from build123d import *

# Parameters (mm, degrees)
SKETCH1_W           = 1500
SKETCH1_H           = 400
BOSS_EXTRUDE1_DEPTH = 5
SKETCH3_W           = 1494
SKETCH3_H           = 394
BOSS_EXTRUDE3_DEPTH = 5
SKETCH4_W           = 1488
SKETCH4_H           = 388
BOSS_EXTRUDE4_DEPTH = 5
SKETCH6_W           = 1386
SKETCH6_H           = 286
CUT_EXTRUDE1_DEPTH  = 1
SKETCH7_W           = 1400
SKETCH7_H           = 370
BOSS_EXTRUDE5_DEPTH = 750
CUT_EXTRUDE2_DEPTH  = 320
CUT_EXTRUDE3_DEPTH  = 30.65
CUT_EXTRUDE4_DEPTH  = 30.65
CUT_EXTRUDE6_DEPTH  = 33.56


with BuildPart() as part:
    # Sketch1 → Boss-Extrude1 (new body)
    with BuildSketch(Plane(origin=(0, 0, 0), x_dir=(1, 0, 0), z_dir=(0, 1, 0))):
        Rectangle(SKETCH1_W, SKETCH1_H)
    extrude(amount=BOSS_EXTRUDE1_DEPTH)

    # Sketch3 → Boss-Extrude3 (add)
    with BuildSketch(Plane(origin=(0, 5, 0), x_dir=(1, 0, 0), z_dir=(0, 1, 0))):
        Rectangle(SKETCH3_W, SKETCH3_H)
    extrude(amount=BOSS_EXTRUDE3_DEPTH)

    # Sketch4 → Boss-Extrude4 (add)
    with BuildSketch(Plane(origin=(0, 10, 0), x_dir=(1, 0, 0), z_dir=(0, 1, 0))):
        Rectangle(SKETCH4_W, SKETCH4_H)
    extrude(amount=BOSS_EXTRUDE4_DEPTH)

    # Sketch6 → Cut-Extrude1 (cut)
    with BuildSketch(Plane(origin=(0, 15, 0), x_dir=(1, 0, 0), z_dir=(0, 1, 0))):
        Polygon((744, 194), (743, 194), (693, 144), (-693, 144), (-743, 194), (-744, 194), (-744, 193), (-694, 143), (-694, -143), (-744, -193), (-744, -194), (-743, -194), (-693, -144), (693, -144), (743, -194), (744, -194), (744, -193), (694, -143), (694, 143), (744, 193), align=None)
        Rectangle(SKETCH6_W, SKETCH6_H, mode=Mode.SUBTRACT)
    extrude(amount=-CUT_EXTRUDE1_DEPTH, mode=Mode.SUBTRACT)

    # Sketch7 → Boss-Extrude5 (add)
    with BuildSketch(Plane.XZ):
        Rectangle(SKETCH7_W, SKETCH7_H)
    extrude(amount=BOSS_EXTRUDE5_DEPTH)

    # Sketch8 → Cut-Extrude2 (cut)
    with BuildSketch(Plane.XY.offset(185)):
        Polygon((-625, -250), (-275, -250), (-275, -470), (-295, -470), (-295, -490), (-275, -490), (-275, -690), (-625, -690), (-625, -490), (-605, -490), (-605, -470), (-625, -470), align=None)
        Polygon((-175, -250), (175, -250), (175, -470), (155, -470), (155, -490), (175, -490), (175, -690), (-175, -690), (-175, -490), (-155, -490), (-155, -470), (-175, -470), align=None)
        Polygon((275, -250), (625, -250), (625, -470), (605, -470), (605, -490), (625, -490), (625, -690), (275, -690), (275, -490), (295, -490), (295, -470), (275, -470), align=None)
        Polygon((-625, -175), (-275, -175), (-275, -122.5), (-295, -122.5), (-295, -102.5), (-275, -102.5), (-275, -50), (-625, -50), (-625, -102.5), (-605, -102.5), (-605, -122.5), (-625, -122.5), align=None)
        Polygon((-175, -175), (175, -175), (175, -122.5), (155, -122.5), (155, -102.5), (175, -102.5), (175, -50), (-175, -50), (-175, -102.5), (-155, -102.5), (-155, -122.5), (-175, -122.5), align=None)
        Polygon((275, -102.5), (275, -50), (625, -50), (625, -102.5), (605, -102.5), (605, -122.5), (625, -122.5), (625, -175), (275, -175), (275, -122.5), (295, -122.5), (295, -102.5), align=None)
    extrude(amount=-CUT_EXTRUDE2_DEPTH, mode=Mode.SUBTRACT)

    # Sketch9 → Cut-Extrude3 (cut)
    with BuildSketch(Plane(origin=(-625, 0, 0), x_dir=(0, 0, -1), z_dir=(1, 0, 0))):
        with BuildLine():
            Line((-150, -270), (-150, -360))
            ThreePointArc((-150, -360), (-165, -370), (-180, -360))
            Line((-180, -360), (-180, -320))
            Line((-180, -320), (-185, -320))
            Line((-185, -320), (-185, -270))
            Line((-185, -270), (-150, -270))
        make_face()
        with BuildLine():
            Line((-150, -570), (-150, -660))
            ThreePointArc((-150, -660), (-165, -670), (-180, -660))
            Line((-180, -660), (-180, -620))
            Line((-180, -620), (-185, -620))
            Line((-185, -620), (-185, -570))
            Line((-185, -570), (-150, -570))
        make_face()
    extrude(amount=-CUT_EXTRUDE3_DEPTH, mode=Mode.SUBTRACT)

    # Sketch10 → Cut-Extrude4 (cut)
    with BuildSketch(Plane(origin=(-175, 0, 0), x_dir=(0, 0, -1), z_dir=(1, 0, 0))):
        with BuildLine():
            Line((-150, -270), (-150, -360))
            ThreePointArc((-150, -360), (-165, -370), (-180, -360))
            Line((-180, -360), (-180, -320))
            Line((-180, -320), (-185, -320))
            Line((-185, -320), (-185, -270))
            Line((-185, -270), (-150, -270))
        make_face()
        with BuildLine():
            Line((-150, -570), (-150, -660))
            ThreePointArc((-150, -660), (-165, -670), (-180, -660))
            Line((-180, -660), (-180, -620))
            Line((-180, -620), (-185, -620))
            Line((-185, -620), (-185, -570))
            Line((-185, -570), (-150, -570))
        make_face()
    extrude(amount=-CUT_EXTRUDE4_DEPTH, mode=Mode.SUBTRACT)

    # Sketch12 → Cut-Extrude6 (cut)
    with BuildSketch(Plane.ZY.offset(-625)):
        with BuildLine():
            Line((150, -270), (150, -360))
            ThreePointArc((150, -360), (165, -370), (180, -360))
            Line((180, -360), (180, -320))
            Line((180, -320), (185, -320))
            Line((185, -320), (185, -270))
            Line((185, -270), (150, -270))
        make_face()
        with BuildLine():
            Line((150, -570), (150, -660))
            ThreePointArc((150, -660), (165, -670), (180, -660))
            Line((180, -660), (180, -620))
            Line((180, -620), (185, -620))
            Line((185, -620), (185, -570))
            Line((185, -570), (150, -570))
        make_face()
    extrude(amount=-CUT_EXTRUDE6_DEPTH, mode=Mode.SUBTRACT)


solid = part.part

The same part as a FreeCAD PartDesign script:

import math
import FreeCAD as App
import Part
import Sketcher
from FreeCAD import Vector
Q = App.Units.Quantity


def add_polygon(sketch, points):
    """Adds a closed chain of lines whose ends are joined by coincident constraints."""
    first, n = sketch.GeometryCount, len(points)
    for a, b in zip(points, points[1:] + points[:1]):
        sketch.addGeometry(Part.LineSegment(App.Vector(*a, 0), App.Vector(*b, 0)), False)
    for i in range(n):
        sketch.addConstraint(Sketcher.Constraint("Coincident", first + i, 2, first + (i + 1) % n, 1))

doc = App.newDocument("Part")
params = doc.addObject("Spreadsheet::Sheet", "Params")
for row, (alias, value) in enumerate([
    ("sketch1_width", "1500 mm"),
    ("sketch1_height", "400 mm"),
    ("pad1_length", "5 mm"),
    ("sketch2_width", "1494 mm"),
    ("sketch2_height", "394 mm"),
    ("pad2_length", "5 mm"),
    ("sketch3_width", "1488 mm"),
    ("sketch3_height", "388 mm"),
    ("pad3_length", "5 mm"),
    ("sketch4_width", "1 mm"),
    ("sketch4_width2", "1386 mm"),
    ("sketch4_height", "286 mm"),
    ("pocket1_length", "1 mm"),
    ("sketch5_width", "1400 mm"),
    ("sketch5_height", "370 mm"),
    ("pad4_length", "750 mm"),
    ("sketch6_width", "350 mm"),
    ("sketch6_width2", "20 mm"),
    ("sketch6_height", "220 mm"),
    ("sketch6_height2", "200 mm"),
    ("sketch6_height3", "52.5 mm"),
    ("pocket2_length", "320 mm"),
    ("sketch7_width", "90 mm"),
    ("sketch7_width2", "50 mm"),
    ("sketch7_height", "35 mm"),
    ("sketch7_height2", "5 mm"),
    ("sketch7_radius", "16.25 mm"),
    ("pocket3_length", "30.65 mm"),
    ("sketch8_width", "90 mm"),
    ("sketch8_width2", "50 mm"),
    ("sketch8_height", "35 mm"),
    ("sketch8_height2", "5 mm"),
    ("sketch8_radius", "16.25 mm"),
    ("pocket4_length", "30.65 mm"),
    ("sketch9_width", "90 mm"),
    ("sketch9_width2", "40 mm"),
    ("sketch9_height", "5 mm"),
    ("sketch9_height2", "35 mm"),
    ("sketch9_radius", "16.25 mm"),
    ("pocket5_length", "33.56 mm"),
], start=1):
    params.set(f"A{row}", alias)
    params.set(f"B{row}", "=" + value)
    params.setAlias(f"B{row}", alias)

body = doc.addObject("PartDesign::Body", "Body")

# Sketch on XZ plane
sketch1 = body.newObject("Sketcher::SketchObject", "Sketch")
sketch1.AttachmentSupport = (doc.getObject("XZ_Plane"), [""])
sketch1.MapMode = "FlatFace"
add_polygon(sketch1, [(-750, -200), (-750, 200), (750, 200), (750, -200)])  # lines 0-3
sketch1.addConstraint([
    Sketcher.Constraint("Vertical", 0),
    Sketcher.Constraint("Horizontal", 1),
    Sketcher.Constraint("Vertical", 2),
    Sketcher.Constraint("Horizontal", 3),
    Sketcher.Constraint("Symmetric", 0, 2, 2, 2, -1, 1),
    Sketcher.Constraint("DistanceX", 1, 1, 1, 2, Q("1500 mm")),
    Sketcher.Constraint("DistanceY", 0, 1, 0, 2, Q("400 mm")),
])
sketch1.setExpression("Constraints[9]", "Params.sketch1_width")
sketch1.setExpression("Constraints[10]", "Params.sketch1_height")
pad1 = body.newObject("PartDesign::Pad", "Pad")
pad1.Profile = sketch1
pad1.setExpression("Length", "Params.pad1_length")
pad1.Reversed = True

# Sketch on XZ plane
sketch2 = body.newObject("Sketcher::SketchObject", "Sketch001")
sketch2.AttachmentSupport = (doc.getObject("XZ_Plane"), [""])
sketch2.MapMode = "FlatFace"
sketch2.AttachmentOffset = App.Placement(Vector(0, 0, -5), App.Rotation())
add_polygon(sketch2, [(-747, -197), (-747, 197), (747, 197), (747, -197)])  # lines 0-3
sketch2.addConstraint([
    Sketcher.Constraint("Vertical", 0),
    Sketcher.Constraint("Horizontal", 1),
    Sketcher.Constraint("Vertical", 2),
    Sketcher.Constraint("Horizontal", 3),
    Sketcher.Constraint("Symmetric", 0, 2, 2, 2, -1, 1),
    Sketcher.Constraint("DistanceX", 1, 1, 1, 2, Q("1494 mm")),
    Sketcher.Constraint("DistanceY", 0, 1, 0, 2, Q("394 mm")),
])
sketch2.setExpression("Constraints[9]", "Params.sketch2_width")
sketch2.setExpression("Constraints[10]", "Params.sketch2_height")
pad2 = body.newObject("PartDesign::Pad", "Pad001")
pad2.Profile = sketch2
pad2.setExpression("Length", "Params.pad2_length")
pad2.Reversed = True

# Sketch on XZ plane
sketch3 = body.newObject("Sketcher::SketchObject", "Sketch002")
sketch3.AttachmentSupport = (doc.getObject("XZ_Plane"), [""])
sketch3.MapMode = "FlatFace"
sketch3.AttachmentOffset = App.Placement(Vector(0, 0, -10), App.Rotation())
add_polygon(sketch3, [(-744, -194), (-744, 194), (744, 194), (744, -194)])  # lines 0-3
sketch3.addConstraint([
    Sketcher.Constraint("Vertical", 0),
    Sketcher.Constraint("Horizontal", 1),
    Sketcher.Constraint("Vertical", 2),
    Sketcher.Constraint("Horizontal", 3),
    Sketcher.Constraint("Symmetric", 0, 2, 2, 2, -1, 1),
    Sketcher.Constraint("DistanceX", 1, 1, 1, 2, Q("1488 mm")),
    Sketcher.Constraint("DistanceY", 0, 1, 0, 2, Q("388 mm")),
])
sketch3.setExpression("Constraints[9]", "Params.sketch3_width")
sketch3.setExpression("Constraints[10]", "Params.sketch3_height")
pad3 = body.newObject("PartDesign::Pad", "Pad002")
pad3.Profile = sketch3
pad3.setExpression("Length", "Params.pad3_length")
pad3.Reversed = True

# Sketch on XZ plane
sketch4 = body.newObject("Sketcher::SketchObject", "Sketch003")
sketch4.AttachmentSupport = (doc.getObject("XZ_Plane"), [""])
sketch4.MapMode = "FlatFace"
sketch4.AttachmentOffset = App.Placement(Vector(0, 0, -15), App.Rotation())
add_polygon(sketch4, [(744, -194), (743, -194), (693, -144), (-693, -144), (-743, -194), (-744, -194), (-744, -193), (-694, -143), (-694, 143), (-744, 193), (-744, 194), (-743, 194), (-693, 144), (693, 144), (743, 194), (744, 194), (744, 193), (694, 143), (694, -143), (744, -193)])  # lines 0-19
add_polygon(sketch4, [(693, 143), (-693, 143), (-693, -143), (693, -143)])  # lines 20-23
sketch4.addConstraint([
    Sketcher.Constraint("Horizontal", 0),
    Sketcher.Constraint("Horizontal", 2),
    Sketcher.Constraint("Horizontal", 4),
    Sketcher.Constraint("Vertical", 5),
    Sketcher.Constraint("Vertical", 7),
    Sketcher.Constraint("Vertical", 9),
    Sketcher.Constraint("Horizontal", 10),
    Sketcher.Constraint("Horizontal", 12),
    Sketcher.Constraint("Horizontal", 14),
    Sketcher.Constraint("Vertical", 15),
    Sketcher.Constraint("Vertical", 17),
    Sketcher.Constraint("Vertical", 19),
    Sketcher.Constraint("Horizontal", 20),
    Sketcher.Constraint("Vertical", 21),
    Sketcher.Constraint("Horizontal", 22),
    Sketcher.Constraint("Vertical", 23),
    Sketcher.Constraint("Symmetric", 0, 2, 10, 2, -1, 1),
    Sketcher.Constraint("Symmetric", 1, 2, 11, 2, -1, 1),
    Sketcher.Constraint("Symmetric", 3, 2, 13, 2, -1, 1),
    Sketcher.Constraint("Symmetric", 5, 2, 15, 2, -1, 1),
    Sketcher.Constraint("Symmetric", 6, 2, 16, 2, -1, 1),
    Sketcher.Constraint("Symmetric", 8, 2, 18, 2, -1, 1),
    Sketcher.Constraint("Symmetric", 20, 2, 22, 2, -1, 1),
    Sketcher.Constraint("Symmetric", 0, 2, 3, 2, -2),
    Sketcher.Constraint("Symmetric", 8, 2, 15, 2, -2),
    Sketcher.Constraint("Perpendicular", 1, 3),
    Sketcher.Constraint("Parallel", 3, 6),
    Sketcher.Constraint("Perpendicular", 6, 8),
    Sketcher.Constraint("Perpendicular", 11, 13),
    Sketcher.Constraint("Perpendicular", 16, 18),
    Sketcher.Constraint("Horizontal", 7, 2, 16, 2),
    Sketcher.Constraint("Horizontal", 16, 2, 20, 2),
    Sketcher.Constraint("Vertical", 11, 2, 20, 2),
    Sketcher.Constraint("Equal", 14, 5),
    Sketcher.Constraint("Equal", 3, 6),
    Sketcher.Constraint("DistanceX", 0, 2, 0, 1, Q("1 mm")),
    Sketcher.Constraint("DistanceX", 2, 2, 2, 1, Q("1386 mm")),
    Sketcher.Constraint("DistanceY", 7, 1, 7, 2, Q("286 mm")),
    Sketcher.Constraint("DistanceX", -1, 1, 0, 2, Q("743 mm")),
])
sketch4.setExpression("Constraints[59]", "Params.sketch4_width")
sketch4.setExpression("Constraints[60]", "Params.sketch4_width2")
sketch4.setExpression("Constraints[61]", "Params.sketch4_height")
pocket1 = body.newObject("PartDesign::Pocket", "Pocket")
pocket1.Profile = sketch4
pocket1.setExpression("Length", "Params.pocket1_length")
pocket1.Reversed = True

# Sketch on XZ plane
sketch5 = body.newObject("Sketcher::SketchObject", "Sketch004")
sketch5.AttachmentSupport = (doc.getObject("XZ_Plane"), [""])
sketch5.MapMode = "FlatFace"
add_polygon(sketch5, [(-700, 185), (-700, -185), (700, -185), (700, 185)])  # lines 0-3
sketch5.addConstraint([
    Sketcher.Constraint("Vertical", 0),
    Sketcher.Constraint("Horizontal", 1),
    Sketcher.Constraint("Vertical", 2),
    Sketcher.Constraint("Horizontal", 3),
    Sketcher.Constraint("Symmetric", 0, 2, 2, 2, -1, 1),
    Sketcher.Constraint("DistanceX", 1, 1, 1, 2, Q("1400 mm")),
    Sketcher.Constraint("DistanceY", 0, 2, 0, 1, Q("370 mm")),
])
sketch5.setExpression("Constraints[9]", "Params.sketch5_width")
sketch5.setExpression("Constraints[10]", "Params.sketch5_height")
pad4 = body.newObject("PartDesign::Pad", "Pad003")
pad4.Profile = sketch5
pad4.setExpression("Length", "Params.pad4_length")

# Sketch on XY plane
sketch6 = body.newObject("Sketcher::SketchObject", "Sketch005")
sketch6.AttachmentSupport = (doc.getObject("XY_Plane"), [""])
sketch6.MapMode = "FlatFace"
sketch6.AttachmentOffset = App.Placement(Vector(0, 0, 185), App.Rotation())
add_polygon(sketch6, [(-275, -250), (-625, -250), (-625, -470), (-605, -470), (-605, -490), (-625, -490), (-625, -690), (-275, -690), (-275, -490), (-295, -490), (-295, -470), (-275, -470)])  # lines 0-11
add_polygon(sketch6, [(175, -250), (-175, -250), (-175, -470), (-155, -470), (-155, -490), (-175, -490), (-175, -690), (175, -690), (175, -490), (155, -490), (155, -470), (175, -470)])  # lines 12-23
add_polygon(sketch6, [(625, -250), (275, -250), (275, -470), (295, -470), (295, -490), (275, -490), (275, -690), (625, -690), (625, -490), (605, -490), (605, -470), (625, -470)])  # lines 24-35
add_polygon(sketch6, [(-625, -175), (-275, -175), (-275, -122), (-295, -122), (-295, -102), (-275, -102), (-275, -50), (-625, -50), (-625, -102), (-605, -102), (-605, -122), (-625, -122)])  # lines 36-47
add_polygon(sketch6, [(-175, -175), (175, -175), (175, -122), (155, -122), (155, -102), (175, -102), (175, -50), (-175, -50), (-175, -102), (-155, -102), (-155, -122), (-175, -122)])  # lines 48-59
add_polygon(sketch6, [(275, -50), (275, -102), (295, -102), (295, -122), (275, -122), (275, -175), (625, -175), (625, -122), (605, -122), (605, -102), (625, -102), (625, -50)])  # lines 60-71
sketch6.addConstraint([
    Sketcher.Constraint("Horizontal", 0),
    Sketcher.Constraint("Vertical", 1),
    Sketcher.Constraint("Horizontal", 2),
    Sketcher.Constraint("Vertical", 3),
    Sketcher.Constraint("Horizontal", 4),
    Sketcher.Constraint("Vertical", 5),
    Sketcher.Constraint("Horizontal", 6),
    Sketcher.Constraint("Vertical", 7),
    Sketcher.Constraint("Horizontal", 8),
    Sketcher.Constraint("Vertical", 9),
    Sketcher.Constraint("Horizontal", 10),
    Sketcher.Constraint("Vertical", 11),
    Sketcher.Constraint("Horizontal", 12),
    Sketcher.Constraint("Vertical", 13),
    Sketcher.Constraint("Horizontal", 14),
    Sketcher.Constraint("Vertical", 15),
    Sketcher.Constraint("Horizontal", 16),
    Sketcher.Constraint("Vertical", 17),
    Sketcher.Constraint("Horizontal", 18),
    Sketcher.Constraint("Vertical", 19),
    Sketcher.Constraint("Horizontal", 20),
    Sketcher.Constraint("Vertical", 21),
    Sketcher.Constraint("Horizontal", 22),
    Sketcher.Constraint("Vertical", 23),
    Sketcher.Constraint("Horizontal", 24),
    Sketcher.Constraint("Vertical", 25),
    Sketcher.Constraint("Horizontal", 26),
    Sketcher.Constraint("Vertical", 27),
    Sketcher.Constraint("Horizontal", 28),
    Sketcher.Constraint("Vertical", 29),
    Sketcher.Constraint("Horizontal", 30),
    Sketcher.Constraint("Vertical", 31),
    Sketcher.Constraint("Horizontal", 32),
    Sketcher.Constraint("Vertical", 33),
    Sketcher.Constraint("Horizontal", 34),
    Sketcher.Constraint("Vertical", 35),
    Sketcher.Constraint("Horizontal", 36),
    Sketcher.Constraint("Vertical", 37),
    Sketcher.Constraint("Horizontal", 38),
    Sketcher.Constraint("Vertical", 39),
    Sketcher.Constraint("Horizontal", 40),
    Sketcher.Constraint("Vertical", 41),
    Sketcher.Constraint("Horizontal", 42),
    Sketcher.Constraint("Vertical", 43),
    Sketcher.Constraint("Horizontal", 44),
    Sketcher.Constraint("Vertical", 45),
    Sketcher.Constraint("Horizontal", 46),
    Sketcher.Constraint("Vertical", 47),
    Sketcher.Constraint("Horizontal", 48),
    Sketcher.Constraint("Vertical", 49),
    Sketcher.Constraint("Horizontal", 50),
    Sketcher.Constraint("Vertical", 51),
    Sketcher.Constraint("Horizontal", 52),
    Sketcher.Constraint("Vertical", 53),
    Sketcher.Constraint("Horizontal", 54),
    Sketcher.Constraint("Vertical", 55),
    Sketcher.Constraint("Horizontal", 56),
    Sketcher.Constraint("Vertical", 57),
    Sketcher.Constraint("Horizontal", 58),
    Sketcher.Constraint("Vertical", 59),
    Sketcher.Constraint("Vertical", 60),
    Sketcher.Constraint("Horizontal", 61),
    Sketcher.Constraint("Vertical", 62),
    Sketcher.Constraint("Horizontal", 63),
    Sketcher.Constraint("Vertical", 64),
    Sketcher.Constraint("Horizontal", 65),
    Sketcher.Constraint("Vertical", 66),
    Sketcher.Constraint("Horizontal", 67),
    Sketcher.Constraint("Vertical", 68),
    Sketcher.Constraint("Horizontal", 69),
    Sketcher.Constraint("Vertical", 70),
    Sketcher.Constraint("Horizontal", 71),
    Sketcher.Constraint("Symmetric", 16, 2, 19, 2, -2),
    Sketcher.Constraint("Symmetric", 14, 2, 21, 2, -2),
    Sketcher.Constraint("Symmetric", 11, 2, 24, 2, -2),
    Sketcher.Constraint("Symmetric", 9, 2, 26, 2, -2),
    Sketcher.Constraint("Symmetric", 7, 2, 28, 2, -2),
    Sketcher.Constraint("Symmetric", 5, 2, 30, 2, -2),
    Sketcher.Constraint("Symmetric", 3, 2, 32, 2, -2),
    Sketcher.Constraint("Symmetric", 1, 2, 34, 2, -2),
    Sketcher.Constraint("Symmetric", 52, 2, 55, 2, -2),
    Sketcher.Constraint("Symmetric", 50, 2, 57, 2, -2),
    Sketcher.Constraint("Symmetric", 40, 2, 60, 2, -2),
    Sketcher.Constraint("Symmetric", 38, 2, 62, 2, -2),
    Sketcher.Constraint("Symmetric", 36, 2, 64, 2, -2),
    Sketcher.Constraint("Symmetric", 46, 2, 66, 2, -2),
    Sketcher.Constraint("Symmetric", 44, 2, 68, 2, -2),
    Sketcher.Constraint("Symmetric", 42, 2, 70, 2, -2),
    Sketcher.Constraint("Horizontal", 4, 2, 7, 2),
    Sketcher.Constraint("Horizontal", 2, 2, 9, 2),
    Sketcher.Constraint("Horizontal", 11, 2, 12, 2),
    Sketcher.Constraint("Horizontal", 10, 2, 13, 2),
    Sketcher.Constraint("Horizontal", 8, 2, 15, 2),
    Sketcher.Constraint("Horizontal", 6, 2, 17, 2),
    Sketcher.Constraint("Horizontal", 40, 2, 43, 2),
    Sketcher.Constraint("Horizontal", 38, 2, 45, 2),
    Sketcher.Constraint("Horizontal", 47, 2, 48, 2),
    Sketcher.Constraint("Horizontal", 46, 2, 49, 2),
    Sketcher.Constraint("Horizontal", 44, 2, 51, 2),
    Sketcher.Constraint("Horizontal", 42, 2, 53, 2),
    Sketcher.Constraint("Vertical", 1, 2, 4, 2),
    Sketcher.Constraint("Vertical", 7, 2, 10, 2),
    Sketcher.Constraint("Vertical", 13, 2, 16, 2),
    Sketcher.Constraint("Vertical", 19, 2, 22, 2),
    Sketcher.Constraint("Vertical", 11, 2, 36, 2),
    Sketcher.Constraint("Vertical", 9, 2, 38, 2),
    Sketcher.Constraint("Vertical", 37, 2, 40, 2),
    Sketcher.Constraint("Vertical", 5, 2, 42, 2),
    Sketcher.Constraint("Vertical", 3, 2, 44, 2),
    Sketcher.Constraint("Vertical", 43, 2, 46, 2),
    Sketcher.Constraint("Vertical", 23, 2, 48, 2),
    Sketcher.Constraint("Vertical", 21, 2, 50, 2),
    Sketcher.Constraint("Vertical", 49, 2, 52, 2),
    Sketcher.Constraint("Vertical", 55, 2, 58, 2),
    Sketcher.Constraint("Equal", 4, 8),
    Sketcher.Constraint("Equal", 6, 12),
    Sketcher.Constraint("Equal", 10, 14),
    Sketcher.Constraint("Equal", 69, 3),
    Sketcher.Constraint("Equal", 33, 39),
    Sketcher.Constraint("Equal", 37, 41),
    Sketcher.Constraint("DistanceX", 0, 2, 0, 1, Q("350 mm")),
    Sketcher.Constraint("DistanceX", 2, 1, 2, 2, Q("20 mm")),
    Sketcher.Constraint("DistanceY", 1, 2, 1, 1, Q("220 mm")),
    Sketcher.Constraint("DistanceY", 5, 2, 5, 1, Q("200 mm")),
    Sketcher.Constraint("DistanceY", 37, 1, 37, 2, Q("52.5 mm")),
    Sketcher.Constraint("DistanceX", 0, 2, -1, 1, Q("625 mm")),
    Sketcher.Constraint("DistanceY", 0, 2, -1, 1, Q("250 mm")),
    Sketcher.Constraint("DistanceY", 36, 2, -1, 1, Q("175 mm")),
])
sketch6.setExpression("Constraints[192]", "Params.sketch6_width")
sketch6.setExpression("Constraints[193]", "Params.sketch6_width2")
sketch6.setExpression("Constraints[194]", "Params.sketch6_height")
sketch6.setExpression("Constraints[195]", "Params.sketch6_height2")
sketch6.setExpression("Constraints[196]", "Params.sketch6_height3")
pocket2 = body.newObject("PartDesign::Pocket", "Pocket001")
pocket2.Profile = sketch6
pocket2.setExpression("Length", "Params.pocket2_length")

# Sketch on YZ plane
sketch7 = body.newObject("Sketcher::SketchObject", "Sketch006")
sketch7.AttachmentSupport = (doc.getObject("YZ_Plane"), [""])
sketch7.MapMode = "FlatFace"
sketch7.AttachmentOffset = App.Placement(Vector(0, 0, -625), App.Rotation())
sketch7.addGeometry([
    Part.LineSegment(Vector(-360, 150, 0), Vector(-270, 150, 0)),  # 0
    Part.LineSegment(Vector(-270, 150, 0), Vector(-270, 185, 0)),  # 1
    Part.LineSegment(Vector(-270, 185, 0), Vector(-320, 185, 0)),  # 2
    Part.LineSegment(Vector(-320, 185, 0), Vector(-320, 180, 0)),  # 3
    Part.LineSegment(Vector(-320, 180, 0), Vector(-360, 180, 0)),  # 4
    Part.ArcOfCircle(Part.Circle(Vector(-354, 165, 0), Vector(0, 0, 1), 16), math.radians(113), math.radians(247)),  # 5
    Part.LineSegment(Vector(-660, 150, 0), Vector(-570, 150, 0)),  # 6
    Part.LineSegment(Vector(-570, 150, 0), Vector(-570, 185, 0)),  # 7
    Part.LineSegment(Vector(-570, 185, 0), Vector(-620, 185, 0)),  # 8
    Part.LineSegment(Vector(-620, 185, 0), Vector(-620, 180, 0)),  # 9
    Part.LineSegment(Vector(-620, 180, 0), Vector(-660, 180, 0)),  # 10
    Part.ArcOfCircle(Part.Circle(Vector(-654, 165, 0), Vector(0, 0, 1), 16), math.radians(113), math.radians(247)),  # 11
], False)
sketch7.addConstraint([
    Sketcher.Constraint("Coincident", 0, 2, 1, 1),
    Sketcher.Constraint("Coincident", 1, 2, 2, 1),
    Sketcher.Constraint("Coincident", 2, 2, 3, 1),
    Sketcher.Constraint("Coincident", 3, 2, 4, 1),
    Sketcher.Constraint("Coincident", 4, 2, 5, 1),
    Sketcher.Constraint("Coincident", 5, 2, 0, 1),
    Sketcher.Constraint("Coincident", 6, 2, 7, 1),
    Sketcher.Constraint("Coincident", 7, 2, 8, 1),
    Sketcher.Constraint("Coincident", 8, 2, 9, 1),
    Sketcher.Constraint("Coincident", 9, 2, 10, 1),
    Sketcher.Constraint("Coincident", 10, 2, 11, 1),
    Sketcher.Constraint("Coincident", 11, 2, 6, 1),
    Sketcher.Constraint("Horizontal", 0),
    Sketcher.Constraint("Vertical", 1),
    Sketcher.Constraint("Horizontal", 2),
    Sketcher.Constraint("Vertical", 3),
    Sketcher.Constraint("Horizontal", 4),
    Sketcher.Constraint("Horizontal", 6),
    Sketcher.Constraint("Vertical", 7),
    Sketcher.Constraint("Horizontal", 8),
    Sketcher.Constraint("Vertical", 9),
    Sketcher.Constraint("Horizontal", 10),
    Sketcher.Constraint("Equal", 5, 11),
    Sketcher.Constraint("Horizontal", 5, 3, 11, 3),
    Sketcher.Constraint("Horizontal", 5, 2, 6, 2),
    Sketcher.Constraint("Horizontal", 2, 2, 7, 2),
    Sketcher.Constraint("Horizontal", 4, 2, 9, 2),
    Sketcher.Constraint("Vertical", 4, 2, 5, 2),
    Sketcher.Constraint("Equal", 0, 6),
    Sketcher.Constraint("Equal", 2, 8),
    Sketcher.Constraint("DistanceX", 0, 1, 0, 2, Q("90 mm")),
    Sketcher.Constraint("DistanceX", 2, 2, 2, 1, Q("50 mm")),
    Sketcher.Constraint("DistanceY", 1, 1, 1, 2, Q("35 mm")),
    Sketcher.Constraint("DistanceY", 3, 2, 3, 1, Q("5 mm")),
    Sketcher.Constraint("Radius", 5, Q("16.25 mm")),
    Sketcher.Constraint("DistanceY", -1, 1, 5, 3, Q("165 mm")),
    Sketcher.Constraint("DistanceX", 0, 2, -1, 1, Q("270 mm")),
    Sketcher.Constraint("DistanceX", 6, 2, -1, 1, Q("570 mm")),
])
sketch7.setExpression("Constraints[30]", "Params.sketch7_width")
sketch7.setExpression("Constraints[31]", "Params.sketch7_width2")
sketch7.setExpression("Constraints[32]", "Params.sketch7_height")
sketch7.setExpression("Constraints[33]", "Params.sketch7_height2")
sketch7.setExpression("Constraints[34]", "Params.sketch7_radius")
pocket3 = body.newObject("PartDesign::Pocket", "Pocket002")
pocket3.Profile = sketch7
pocket3.setExpression("Length", "Params.pocket3_length")

# Sketch on YZ plane
sketch8 = body.newObject("Sketcher::SketchObject", "Sketch007")
sketch8.AttachmentSupport = (doc.getObject("YZ_Plane"), [""])
sketch8.MapMode = "FlatFace"
sketch8.AttachmentOffset = App.Placement(Vector(0, 0, -175), App.Rotation())
sketch8.addGeometry([
    Part.LineSegment(Vector(-360, 150, 0), Vector(-270, 150, 0)),  # 0
    Part.LineSegment(Vector(-270, 150, 0), Vector(-270, 185, 0)),  # 1
    Part.LineSegment(Vector(-270, 185, 0), Vector(-320, 185, 0)),  # 2
    Part.LineSegment(Vector(-320, 185, 0), Vector(-320, 180, 0)),  # 3
    Part.LineSegment(Vector(-320, 180, 0), Vector(-360, 180, 0)),  # 4
    Part.ArcOfCircle(Part.Circle(Vector(-354, 165, 0), Vector(0, 0, 1), 16), math.radians(113), math.radians(247)),  # 5
    Part.LineSegment(Vector(-660, 150, 0), Vector(-570, 150, 0)),  # 6
    Part.LineSegment(Vector(-570, 150, 0), Vector(-570, 185, 0)),  # 7
    Part.LineSegment(Vector(-570, 185, 0), Vector(-620, 185, 0)),  # 8
    Part.LineSegment(Vector(-620, 185, 0), Vector(-620, 180, 0)),  # 9
    Part.LineSegment(Vector(-620, 180, 0), Vector(-660, 180, 0)),  # 10
    Part.ArcOfCircle(Part.Circle(Vector(-654, 165, 0), Vector(0, 0, 1), 16), math.radians(113), math.radians(247)),  # 11
], False)
sketch8.addConstraint([
    Sketcher.Constraint("Coincident", 0, 2, 1, 1),
    Sketcher.Constraint("Coincident", 1, 2, 2, 1),
    Sketcher.Constraint("Coincident", 2, 2, 3, 1),
    Sketcher.Constraint("Coincident", 3, 2, 4, 1),
    Sketcher.Constraint("Coincident", 4, 2, 5, 1),
    Sketcher.Constraint("Coincident", 5, 2, 0, 1),
    Sketcher.Constraint("Coincident", 6, 2, 7, 1),
    Sketcher.Constraint("Coincident", 7, 2, 8, 1),
    Sketcher.Constraint("Coincident", 8, 2, 9, 1),
    Sketcher.Constraint("Coincident", 9, 2, 10, 1),
    Sketcher.Constraint("Coincident", 10, 2, 11, 1),
    Sketcher.Constraint("Coincident", 11, 2, 6, 1),
    Sketcher.Constraint("Horizontal", 0),
    Sketcher.Constraint("Vertical", 1),
    Sketcher.Constraint("Horizontal", 2),
    Sketcher.Constraint("Vertical", 3),
    Sketcher.Constraint("Horizontal", 4),
    Sketcher.Constraint("Horizontal", 6),
    Sketcher.Constraint("Vertical", 7),
    Sketcher.Constraint("Horizontal", 8),
    Sketcher.Constraint("Vertical", 9),
    Sketcher.Constraint("Horizontal", 10),
    Sketcher.Constraint("Equal", 5, 11),
    Sketcher.Constraint("Horizontal", 5, 3, 11, 3),
    Sketcher.Constraint("Horizontal", 5, 2, 6, 2),
    Sketcher.Constraint("Horizontal", 2, 2, 7, 2),
    Sketcher.Constraint("Horizontal", 4, 2, 9, 2),
    Sketcher.Constraint("Vertical", 4, 2, 5, 2),
    Sketcher.Constraint("Equal", 0, 6),
    Sketcher.Constraint("Equal", 2, 8),
    Sketcher.Constraint("DistanceX", 0, 1, 0, 2, Q("90 mm")),
    Sketcher.Constraint("DistanceX", 2, 2, 2, 1, Q("50 mm")),
    Sketcher.Constraint("DistanceY", 1, 1, 1, 2, Q("35 mm")),
    Sketcher.Constraint("DistanceY", 3, 2, 3, 1, Q("5 mm")),
    Sketcher.Constraint("Radius", 5, Q("16.25 mm")),
    Sketcher.Constraint("DistanceY", -1, 1, 5, 3, Q("165 mm")),
    Sketcher.Constraint("DistanceX", 0, 2, -1, 1, Q("270 mm")),
    Sketcher.Constraint("DistanceX", 6, 2, -1, 1, Q("570 mm")),
])
sketch8.setExpression("Constraints[30]", "Params.sketch8_width")
sketch8.setExpression("Constraints[31]", "Params.sketch8_width2")
sketch8.setExpression("Constraints[32]", "Params.sketch8_height")
sketch8.setExpression("Constraints[33]", "Params.sketch8_height2")
sketch8.setExpression("Constraints[34]", "Params.sketch8_radius")
pocket4 = body.newObject("PartDesign::Pocket", "Pocket003")
pocket4.Profile = sketch8
pocket4.setExpression("Length", "Params.pocket4_length")

# Sketch on YZ plane
sketch9 = body.newObject("Sketcher::SketchObject", "Sketch008")
sketch9.AttachmentSupport = (doc.getObject("YZ_Plane"), [""])
sketch9.MapMode = "FlatFace"
sketch9.AttachmentOffset = App.Placement(Vector(0, 0, 625), App.Rotation())
sketch9.addGeometry([
    Part.LineSegment(Vector(-270, 150, 0), Vector(-360, 150, 0)),  # 0
    Part.ArcOfCircle(Part.Circle(Vector(-354, 165, 0), Vector(0, 0, 1), 16), math.radians(113), math.radians(247)),  # 1
    Part.LineSegment(Vector(-360, 180, 0), Vector(-320, 180, 0)),  # 2
    Part.LineSegment(Vector(-320, 180, 0), Vector(-320, 185, 0)),  # 3
    Part.LineSegment(Vector(-320, 185, 0), Vector(-270, 185, 0)),  # 4
    Part.LineSegment(Vector(-270, 185, 0), Vector(-270, 150, 0)),  # 5
    Part.LineSegment(Vector(-570, 150, 0), Vector(-660, 150, 0)),  # 6
    Part.ArcOfCircle(Part.Circle(Vector(-654, 165, 0), Vector(0, 0, 1), 16), math.radians(113), math.radians(247)),  # 7
    Part.LineSegment(Vector(-660, 180, 0), Vector(-620, 180, 0)),  # 8
    Part.LineSegment(Vector(-620, 180, 0), Vector(-620, 185, 0)),  # 9
    Part.LineSegment(Vector(-620, 185, 0), Vector(-570, 185, 0)),  # 10
    Part.LineSegment(Vector(-570, 185, 0), Vector(-570, 150, 0)),  # 11
], False)
sketch9.addConstraint([
    Sketcher.Constraint("Coincident", 0, 2, 1, 2),
    Sketcher.Constraint("Coincident", 1, 1, 2, 1),
    Sketcher.Constraint("Coincident", 2, 2, 3, 1),
    Sketcher.Constraint("Coincident", 3, 2, 4, 1),
    Sketcher.Constraint("Coincident", 4, 2, 5, 1),
    Sketcher.Constraint("Coincident", 5, 2, 0, 1),
    Sketcher.Constraint("Coincident", 6, 2, 7, 2),
    Sketcher.Constraint("Coincident", 7, 1, 8, 1),
    Sketcher.Constraint("Coincident", 8, 2, 9, 1),
    Sketcher.Constraint("Coincident", 9, 2, 10, 1),
    Sketcher.Constraint("Coincident", 10, 2, 11, 1),
    Sketcher.Constraint("Coincident", 11, 2, 6, 1),
    Sketcher.Constraint("Horizontal", 0),
    Sketcher.Constraint("Horizontal", 2),
    Sketcher.Constraint("Vertical", 3),
    Sketcher.Constraint("Horizontal", 4),
    Sketcher.Constraint("Vertical", 5),
    Sketcher.Constraint("Horizontal", 6),
    Sketcher.Constraint("Horizontal", 8),
    Sketcher.Constraint("Vertical", 9),
    Sketcher.Constraint("Horizontal", 10),
    Sketcher.Constraint("Vertical", 11),
    Sketcher.Constraint("Equal", 1, 7),
    Sketcher.Constraint("Horizontal", 1, 3, 7, 3),
    Sketcher.Constraint("Horizontal", 5, 2, 6, 2),
    Sketcher.Constraint("Horizontal", 2, 2, 7, 1),
    Sketcher.Constraint("Horizontal", 4, 2, 9, 2),
    Sketcher.Constraint("Vertical", 0, 2, 1, 1),
    Sketcher.Constraint("Equal", 0, 6),
    Sketcher.Constraint("Equal", 2, 8),
    Sketcher.Constraint("DistanceX", 0, 2, 0, 1, Q("90 mm")),
    Sketcher.Constraint("DistanceX", 2, 1, 2, 2, Q("40 mm")),
    Sketcher.Constraint("DistanceY", 3, 1, 3, 2, Q("5 mm")),
    Sketcher.Constraint("DistanceY", 5, 2, 5, 1, Q("35 mm")),
    Sketcher.Constraint("Radius", 1, Q("16.25 mm")),
    Sketcher.Constraint("DistanceY", -1, 1, 1, 3, Q("165 mm")),
    Sketcher.Constraint("DistanceX", 0, 2, -1, 1, Q("360 mm")),
    Sketcher.Constraint("DistanceX", 6, 2, -1, 1, Q("660 mm")),
])
sketch9.setExpression("Constraints[30]", "Params.sketch9_width")
sketch9.setExpression("Constraints[31]", "Params.sketch9_width2")
sketch9.setExpression("Constraints[32]", "Params.sketch9_height")
sketch9.setExpression("Constraints[33]", "Params.sketch9_height2")
sketch9.setExpression("Constraints[34]", "Params.sketch9_radius")
pocket5 = body.newObject("PartDesign::Pocket", "Pocket004")
pocket5.Profile = sketch9
pocket5.setExpression("Length", "Params.pocket5_length")
pocket5.Reversed = True

doc.recompute()
